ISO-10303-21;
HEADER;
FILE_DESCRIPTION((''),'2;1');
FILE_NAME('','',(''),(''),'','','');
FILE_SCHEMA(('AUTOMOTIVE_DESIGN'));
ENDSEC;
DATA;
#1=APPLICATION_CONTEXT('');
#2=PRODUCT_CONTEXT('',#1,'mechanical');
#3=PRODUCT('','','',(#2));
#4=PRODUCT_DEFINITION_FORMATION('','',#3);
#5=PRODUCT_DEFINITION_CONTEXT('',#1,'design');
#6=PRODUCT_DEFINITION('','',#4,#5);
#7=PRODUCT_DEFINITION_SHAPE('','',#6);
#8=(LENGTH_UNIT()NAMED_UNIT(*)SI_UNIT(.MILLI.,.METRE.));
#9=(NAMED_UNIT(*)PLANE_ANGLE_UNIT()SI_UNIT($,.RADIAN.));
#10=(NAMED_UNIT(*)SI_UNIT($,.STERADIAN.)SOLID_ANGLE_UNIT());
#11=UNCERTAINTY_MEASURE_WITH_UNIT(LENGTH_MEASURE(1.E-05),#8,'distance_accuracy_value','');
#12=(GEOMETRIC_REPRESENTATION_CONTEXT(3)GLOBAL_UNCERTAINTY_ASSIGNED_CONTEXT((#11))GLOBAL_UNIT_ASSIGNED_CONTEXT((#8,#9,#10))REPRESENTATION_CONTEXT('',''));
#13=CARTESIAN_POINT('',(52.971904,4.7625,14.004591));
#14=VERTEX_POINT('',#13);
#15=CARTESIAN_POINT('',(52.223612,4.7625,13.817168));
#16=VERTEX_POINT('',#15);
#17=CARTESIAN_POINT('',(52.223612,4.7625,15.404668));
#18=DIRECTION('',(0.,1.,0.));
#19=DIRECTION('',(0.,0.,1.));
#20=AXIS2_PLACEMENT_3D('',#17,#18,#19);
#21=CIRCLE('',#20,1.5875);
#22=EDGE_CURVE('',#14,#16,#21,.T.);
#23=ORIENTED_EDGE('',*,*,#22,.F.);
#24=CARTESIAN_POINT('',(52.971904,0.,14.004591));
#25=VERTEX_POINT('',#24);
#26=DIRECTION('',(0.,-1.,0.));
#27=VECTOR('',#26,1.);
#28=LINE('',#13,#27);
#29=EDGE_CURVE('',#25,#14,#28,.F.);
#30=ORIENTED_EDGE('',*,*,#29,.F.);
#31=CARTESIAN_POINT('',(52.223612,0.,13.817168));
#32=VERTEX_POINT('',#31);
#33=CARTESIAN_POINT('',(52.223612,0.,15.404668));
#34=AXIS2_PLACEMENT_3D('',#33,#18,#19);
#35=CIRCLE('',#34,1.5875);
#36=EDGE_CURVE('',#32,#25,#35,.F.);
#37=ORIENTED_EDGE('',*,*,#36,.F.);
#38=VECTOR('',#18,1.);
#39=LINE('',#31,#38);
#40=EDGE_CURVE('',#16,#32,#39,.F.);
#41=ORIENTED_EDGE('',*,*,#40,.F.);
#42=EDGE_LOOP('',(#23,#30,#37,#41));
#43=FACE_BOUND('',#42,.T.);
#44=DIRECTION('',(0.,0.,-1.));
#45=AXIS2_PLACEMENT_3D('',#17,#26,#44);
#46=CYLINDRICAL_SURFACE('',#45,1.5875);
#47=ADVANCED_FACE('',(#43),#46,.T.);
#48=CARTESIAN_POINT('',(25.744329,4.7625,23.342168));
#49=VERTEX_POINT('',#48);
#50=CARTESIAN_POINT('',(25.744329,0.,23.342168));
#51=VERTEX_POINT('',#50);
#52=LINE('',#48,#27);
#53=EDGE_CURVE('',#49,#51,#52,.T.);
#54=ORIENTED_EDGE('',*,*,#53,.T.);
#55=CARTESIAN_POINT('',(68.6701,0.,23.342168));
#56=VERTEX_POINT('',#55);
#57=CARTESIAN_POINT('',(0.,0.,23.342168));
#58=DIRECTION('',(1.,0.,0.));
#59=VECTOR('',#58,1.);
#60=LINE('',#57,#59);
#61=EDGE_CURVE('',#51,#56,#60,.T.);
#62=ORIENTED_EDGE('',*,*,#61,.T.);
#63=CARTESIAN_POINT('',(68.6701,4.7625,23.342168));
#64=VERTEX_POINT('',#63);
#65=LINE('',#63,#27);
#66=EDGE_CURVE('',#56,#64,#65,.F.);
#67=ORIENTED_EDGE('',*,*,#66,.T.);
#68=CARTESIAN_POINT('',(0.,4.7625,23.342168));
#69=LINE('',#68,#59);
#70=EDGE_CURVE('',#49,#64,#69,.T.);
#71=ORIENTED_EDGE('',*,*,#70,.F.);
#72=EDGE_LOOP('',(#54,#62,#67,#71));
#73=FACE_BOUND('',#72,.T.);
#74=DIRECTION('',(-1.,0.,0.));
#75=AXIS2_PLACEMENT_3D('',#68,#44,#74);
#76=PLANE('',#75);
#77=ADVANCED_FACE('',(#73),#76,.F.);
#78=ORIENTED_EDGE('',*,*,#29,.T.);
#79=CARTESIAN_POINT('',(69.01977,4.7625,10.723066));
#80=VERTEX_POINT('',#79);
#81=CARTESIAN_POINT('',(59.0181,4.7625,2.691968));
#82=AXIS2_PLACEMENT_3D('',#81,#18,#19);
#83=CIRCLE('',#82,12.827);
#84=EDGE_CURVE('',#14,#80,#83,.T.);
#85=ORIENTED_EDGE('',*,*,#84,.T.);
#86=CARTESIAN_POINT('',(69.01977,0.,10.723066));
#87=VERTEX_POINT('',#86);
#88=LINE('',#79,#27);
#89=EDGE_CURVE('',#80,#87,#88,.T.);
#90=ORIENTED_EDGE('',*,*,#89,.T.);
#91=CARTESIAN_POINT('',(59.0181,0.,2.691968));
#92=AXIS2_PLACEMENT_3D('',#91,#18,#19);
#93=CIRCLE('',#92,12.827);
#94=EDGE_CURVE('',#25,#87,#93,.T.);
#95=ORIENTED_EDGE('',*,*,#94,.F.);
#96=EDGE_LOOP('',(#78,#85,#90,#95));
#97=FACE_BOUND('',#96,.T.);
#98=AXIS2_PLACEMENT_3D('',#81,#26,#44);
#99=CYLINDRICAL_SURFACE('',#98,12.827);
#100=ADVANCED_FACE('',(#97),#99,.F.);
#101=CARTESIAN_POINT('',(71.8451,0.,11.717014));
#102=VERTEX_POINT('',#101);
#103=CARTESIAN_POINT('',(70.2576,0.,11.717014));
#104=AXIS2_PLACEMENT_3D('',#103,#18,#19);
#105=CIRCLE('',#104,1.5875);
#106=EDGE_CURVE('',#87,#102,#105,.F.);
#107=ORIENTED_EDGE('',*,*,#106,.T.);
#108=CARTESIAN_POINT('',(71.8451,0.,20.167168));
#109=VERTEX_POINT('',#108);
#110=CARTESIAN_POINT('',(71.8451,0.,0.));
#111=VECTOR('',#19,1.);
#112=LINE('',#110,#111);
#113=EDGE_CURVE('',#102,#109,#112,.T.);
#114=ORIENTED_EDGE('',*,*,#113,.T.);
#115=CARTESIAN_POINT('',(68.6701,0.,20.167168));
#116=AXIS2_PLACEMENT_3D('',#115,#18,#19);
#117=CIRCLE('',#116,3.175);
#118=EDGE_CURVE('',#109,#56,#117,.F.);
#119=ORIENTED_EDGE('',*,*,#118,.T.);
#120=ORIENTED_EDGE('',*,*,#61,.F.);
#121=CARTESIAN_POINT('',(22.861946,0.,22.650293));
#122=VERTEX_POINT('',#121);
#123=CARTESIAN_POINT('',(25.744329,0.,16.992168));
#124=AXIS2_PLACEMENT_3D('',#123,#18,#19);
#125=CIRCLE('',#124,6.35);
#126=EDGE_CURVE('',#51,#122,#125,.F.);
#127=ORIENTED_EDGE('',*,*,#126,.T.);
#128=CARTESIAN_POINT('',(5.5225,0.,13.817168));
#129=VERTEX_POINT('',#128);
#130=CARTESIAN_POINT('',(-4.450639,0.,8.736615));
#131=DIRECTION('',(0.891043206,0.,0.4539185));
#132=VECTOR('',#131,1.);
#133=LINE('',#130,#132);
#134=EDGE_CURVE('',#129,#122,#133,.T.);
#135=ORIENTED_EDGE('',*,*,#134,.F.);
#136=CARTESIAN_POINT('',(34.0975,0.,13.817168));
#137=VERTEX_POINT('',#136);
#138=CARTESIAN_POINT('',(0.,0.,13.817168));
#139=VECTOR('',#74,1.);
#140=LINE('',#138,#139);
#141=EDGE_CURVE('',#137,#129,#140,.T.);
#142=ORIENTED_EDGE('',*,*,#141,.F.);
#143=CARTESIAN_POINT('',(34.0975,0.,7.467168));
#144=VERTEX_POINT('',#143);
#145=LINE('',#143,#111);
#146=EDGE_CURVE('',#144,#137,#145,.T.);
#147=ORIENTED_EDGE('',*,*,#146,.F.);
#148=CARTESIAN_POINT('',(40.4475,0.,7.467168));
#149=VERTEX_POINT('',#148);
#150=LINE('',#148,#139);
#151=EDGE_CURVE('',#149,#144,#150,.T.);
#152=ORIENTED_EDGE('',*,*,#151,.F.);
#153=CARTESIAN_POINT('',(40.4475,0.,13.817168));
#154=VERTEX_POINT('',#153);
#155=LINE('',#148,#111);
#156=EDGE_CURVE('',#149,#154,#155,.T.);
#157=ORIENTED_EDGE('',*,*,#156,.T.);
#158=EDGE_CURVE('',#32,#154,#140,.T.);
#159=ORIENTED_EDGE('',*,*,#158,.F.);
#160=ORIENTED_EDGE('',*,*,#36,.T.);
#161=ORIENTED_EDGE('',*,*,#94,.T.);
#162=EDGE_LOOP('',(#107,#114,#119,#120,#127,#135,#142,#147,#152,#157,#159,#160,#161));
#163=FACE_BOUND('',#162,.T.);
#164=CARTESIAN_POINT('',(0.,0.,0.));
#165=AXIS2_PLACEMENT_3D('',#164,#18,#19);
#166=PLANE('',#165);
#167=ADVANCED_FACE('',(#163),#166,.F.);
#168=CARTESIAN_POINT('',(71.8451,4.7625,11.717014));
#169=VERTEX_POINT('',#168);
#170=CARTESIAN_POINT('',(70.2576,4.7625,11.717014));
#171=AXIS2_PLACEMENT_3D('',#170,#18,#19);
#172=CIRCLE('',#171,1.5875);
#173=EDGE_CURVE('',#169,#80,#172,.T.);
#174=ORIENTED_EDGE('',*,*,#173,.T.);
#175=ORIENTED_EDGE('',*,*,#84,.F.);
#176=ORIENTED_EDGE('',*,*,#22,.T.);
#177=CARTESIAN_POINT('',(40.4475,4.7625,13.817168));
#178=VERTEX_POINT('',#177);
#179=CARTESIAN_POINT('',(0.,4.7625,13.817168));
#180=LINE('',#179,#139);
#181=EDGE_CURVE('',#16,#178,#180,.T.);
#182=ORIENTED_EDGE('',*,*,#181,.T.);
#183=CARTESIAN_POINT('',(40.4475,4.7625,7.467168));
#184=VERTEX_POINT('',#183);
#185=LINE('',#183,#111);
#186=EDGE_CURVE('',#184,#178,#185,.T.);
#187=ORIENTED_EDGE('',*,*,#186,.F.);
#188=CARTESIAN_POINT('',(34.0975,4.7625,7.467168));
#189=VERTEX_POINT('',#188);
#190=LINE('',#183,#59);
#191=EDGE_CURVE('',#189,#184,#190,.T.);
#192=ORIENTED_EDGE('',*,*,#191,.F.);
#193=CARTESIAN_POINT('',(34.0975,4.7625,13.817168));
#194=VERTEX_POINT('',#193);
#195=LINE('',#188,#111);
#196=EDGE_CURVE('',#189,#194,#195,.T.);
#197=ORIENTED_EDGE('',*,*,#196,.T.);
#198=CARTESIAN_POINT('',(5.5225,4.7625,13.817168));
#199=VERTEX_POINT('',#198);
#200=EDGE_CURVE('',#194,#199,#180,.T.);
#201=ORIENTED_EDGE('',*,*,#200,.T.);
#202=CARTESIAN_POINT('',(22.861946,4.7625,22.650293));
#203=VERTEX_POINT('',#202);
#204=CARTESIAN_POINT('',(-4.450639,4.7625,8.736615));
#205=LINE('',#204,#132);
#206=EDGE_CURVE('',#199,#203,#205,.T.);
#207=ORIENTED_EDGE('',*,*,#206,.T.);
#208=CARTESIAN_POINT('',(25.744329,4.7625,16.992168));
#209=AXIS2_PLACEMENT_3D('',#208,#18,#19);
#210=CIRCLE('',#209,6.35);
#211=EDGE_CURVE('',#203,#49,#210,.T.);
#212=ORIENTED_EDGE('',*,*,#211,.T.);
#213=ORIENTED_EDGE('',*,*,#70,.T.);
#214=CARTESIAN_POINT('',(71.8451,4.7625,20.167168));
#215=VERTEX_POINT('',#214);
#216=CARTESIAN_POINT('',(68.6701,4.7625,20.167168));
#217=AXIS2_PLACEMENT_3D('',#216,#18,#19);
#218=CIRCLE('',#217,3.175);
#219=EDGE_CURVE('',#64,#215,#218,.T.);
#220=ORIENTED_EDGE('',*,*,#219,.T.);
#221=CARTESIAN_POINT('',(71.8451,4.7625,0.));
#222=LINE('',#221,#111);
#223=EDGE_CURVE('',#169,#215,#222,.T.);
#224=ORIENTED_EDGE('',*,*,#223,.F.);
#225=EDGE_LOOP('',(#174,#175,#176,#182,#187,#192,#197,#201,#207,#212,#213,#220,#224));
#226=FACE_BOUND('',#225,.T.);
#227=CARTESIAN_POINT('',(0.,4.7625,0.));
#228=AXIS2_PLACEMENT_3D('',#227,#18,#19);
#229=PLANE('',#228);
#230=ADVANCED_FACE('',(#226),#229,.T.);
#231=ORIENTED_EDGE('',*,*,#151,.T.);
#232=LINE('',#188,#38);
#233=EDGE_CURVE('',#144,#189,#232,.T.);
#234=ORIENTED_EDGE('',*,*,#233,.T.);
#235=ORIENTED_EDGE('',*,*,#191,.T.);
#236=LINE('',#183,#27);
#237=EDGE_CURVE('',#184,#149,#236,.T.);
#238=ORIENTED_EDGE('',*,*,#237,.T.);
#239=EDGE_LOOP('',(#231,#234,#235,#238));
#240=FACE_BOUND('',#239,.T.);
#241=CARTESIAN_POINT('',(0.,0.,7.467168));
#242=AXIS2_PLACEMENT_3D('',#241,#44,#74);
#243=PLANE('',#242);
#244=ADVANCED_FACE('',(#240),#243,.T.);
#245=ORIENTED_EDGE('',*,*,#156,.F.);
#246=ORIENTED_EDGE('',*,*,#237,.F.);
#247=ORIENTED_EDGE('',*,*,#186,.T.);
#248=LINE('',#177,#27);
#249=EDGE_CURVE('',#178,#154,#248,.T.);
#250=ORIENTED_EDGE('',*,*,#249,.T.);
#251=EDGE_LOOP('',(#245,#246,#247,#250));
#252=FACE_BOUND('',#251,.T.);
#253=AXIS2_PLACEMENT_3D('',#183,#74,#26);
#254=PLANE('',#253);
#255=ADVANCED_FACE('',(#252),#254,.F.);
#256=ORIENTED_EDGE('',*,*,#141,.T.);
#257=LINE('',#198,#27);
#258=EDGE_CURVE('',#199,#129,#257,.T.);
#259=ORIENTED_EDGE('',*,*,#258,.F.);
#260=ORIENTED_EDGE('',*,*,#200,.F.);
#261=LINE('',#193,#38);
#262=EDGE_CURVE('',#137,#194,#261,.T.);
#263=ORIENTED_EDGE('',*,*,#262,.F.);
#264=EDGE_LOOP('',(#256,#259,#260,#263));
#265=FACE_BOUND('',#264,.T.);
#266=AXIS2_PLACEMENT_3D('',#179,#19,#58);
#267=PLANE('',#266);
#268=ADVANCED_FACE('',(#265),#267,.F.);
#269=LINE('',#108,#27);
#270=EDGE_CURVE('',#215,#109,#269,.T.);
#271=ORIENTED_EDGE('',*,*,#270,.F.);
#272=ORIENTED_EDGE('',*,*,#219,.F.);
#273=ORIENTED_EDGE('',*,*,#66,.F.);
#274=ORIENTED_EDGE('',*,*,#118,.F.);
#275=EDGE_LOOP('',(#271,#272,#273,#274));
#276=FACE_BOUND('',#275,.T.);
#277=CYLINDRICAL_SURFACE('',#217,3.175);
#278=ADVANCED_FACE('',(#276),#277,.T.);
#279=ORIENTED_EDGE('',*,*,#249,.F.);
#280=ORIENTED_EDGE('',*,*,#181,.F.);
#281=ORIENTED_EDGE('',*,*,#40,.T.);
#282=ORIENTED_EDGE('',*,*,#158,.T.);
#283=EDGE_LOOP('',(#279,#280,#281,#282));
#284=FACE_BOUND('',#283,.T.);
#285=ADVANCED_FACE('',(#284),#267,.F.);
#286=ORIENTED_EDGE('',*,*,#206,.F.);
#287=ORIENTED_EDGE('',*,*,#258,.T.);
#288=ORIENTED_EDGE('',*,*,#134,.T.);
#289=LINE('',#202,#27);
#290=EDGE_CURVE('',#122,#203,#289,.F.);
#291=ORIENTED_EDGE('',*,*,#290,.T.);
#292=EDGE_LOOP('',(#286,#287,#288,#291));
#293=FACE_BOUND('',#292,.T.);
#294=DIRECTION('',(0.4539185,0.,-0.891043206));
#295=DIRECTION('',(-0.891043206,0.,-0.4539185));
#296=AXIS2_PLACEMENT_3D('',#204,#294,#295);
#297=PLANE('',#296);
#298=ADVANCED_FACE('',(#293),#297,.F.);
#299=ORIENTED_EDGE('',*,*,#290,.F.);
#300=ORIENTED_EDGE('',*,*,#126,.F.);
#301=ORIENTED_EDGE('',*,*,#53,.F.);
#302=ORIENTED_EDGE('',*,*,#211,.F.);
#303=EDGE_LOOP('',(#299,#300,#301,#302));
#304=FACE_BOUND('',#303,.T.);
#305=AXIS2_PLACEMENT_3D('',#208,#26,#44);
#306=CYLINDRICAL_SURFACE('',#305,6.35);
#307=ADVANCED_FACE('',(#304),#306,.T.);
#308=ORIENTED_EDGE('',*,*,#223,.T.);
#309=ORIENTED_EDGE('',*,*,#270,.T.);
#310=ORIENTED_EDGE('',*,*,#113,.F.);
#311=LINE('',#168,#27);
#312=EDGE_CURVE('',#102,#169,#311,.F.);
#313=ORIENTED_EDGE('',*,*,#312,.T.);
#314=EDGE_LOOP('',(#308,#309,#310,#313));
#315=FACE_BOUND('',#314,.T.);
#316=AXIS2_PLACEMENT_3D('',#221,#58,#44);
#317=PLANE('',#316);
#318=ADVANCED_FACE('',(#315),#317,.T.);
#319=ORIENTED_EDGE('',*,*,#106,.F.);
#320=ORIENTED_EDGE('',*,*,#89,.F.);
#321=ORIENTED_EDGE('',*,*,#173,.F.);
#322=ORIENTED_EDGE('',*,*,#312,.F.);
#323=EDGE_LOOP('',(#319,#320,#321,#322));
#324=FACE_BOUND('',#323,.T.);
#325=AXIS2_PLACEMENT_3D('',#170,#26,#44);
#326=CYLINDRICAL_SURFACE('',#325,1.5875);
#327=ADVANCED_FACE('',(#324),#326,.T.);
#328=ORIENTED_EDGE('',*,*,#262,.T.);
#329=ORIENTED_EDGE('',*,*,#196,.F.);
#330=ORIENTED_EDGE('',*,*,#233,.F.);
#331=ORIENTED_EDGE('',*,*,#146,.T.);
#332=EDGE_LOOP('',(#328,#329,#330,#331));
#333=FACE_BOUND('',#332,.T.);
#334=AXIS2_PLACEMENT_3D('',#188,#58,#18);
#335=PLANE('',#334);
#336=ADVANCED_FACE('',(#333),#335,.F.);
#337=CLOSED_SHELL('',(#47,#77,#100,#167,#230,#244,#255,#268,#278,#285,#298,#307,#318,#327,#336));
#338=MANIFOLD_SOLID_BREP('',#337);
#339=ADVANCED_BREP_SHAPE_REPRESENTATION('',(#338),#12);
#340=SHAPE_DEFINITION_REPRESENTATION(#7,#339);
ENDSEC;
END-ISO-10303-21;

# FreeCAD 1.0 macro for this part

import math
import FreeCAD as App
import Part
import Sketcher
from FreeCAD import Vector
Q = App.Units.Quantity


def edges_at(feature, points):
    """Names of the edges that pass closest to the given points."""
    edges = feature.Shape.Edges
    near = lambda p: min(range(len(edges)), key=lambda i: edges[i].distToShape(Part.Vertex(*p))[0])
    return sorted({f"Edge{near(p) + 1}" for p in points})

doc = App.newDocument("Part")
body = doc.addObject("PartDesign::Body", "Body")

# Sketch on XZ plane
sketch1 = body.newObject("Sketcher::SketchObject", "Sketch")
sketch1.AttachmentSupport = (doc.getObject("XZ_Plane"), [""])
sketch1.MapMode = "FlatFace"
sketch1.addGeometry([
    Part.ArcOfCircle(Part.Circle(Vector(59, 3, 0), Vector(0, 0, 1), 13), math.radians(0), math.radians(120)),  # 0
    Part.LineSegment(Vector(53, 14, 0), Vector(6, 14, 0)),  # 1
    Part.LineSegment(Vector(6, 14, 0), Vector(24, 23, 0)),  # 2
    Part.LineSegment(Vector(24, 23, 0), Vector(72, 23, 0)),  # 3
    Part.LineSegment(Vector(72, 23, 0), Vector(72, 3, 0)),  # 4
], False)
sketch1.addConstraint([
    Sketcher.Constraint("Coincident", 0, 2, 1, 1),
    Sketcher.Constraint("Coincident", 1, 2, 2, 1),
    Sketcher.Constraint("Coincident", 2, 2, 3, 1),
    Sketcher.Constraint("Coincident", 3, 2, 4, 1),
    Sketcher.Constraint("Tangent", 4, 2, 0, 1),
    Sketcher.Constraint("Horizontal", 1),
    Sketcher.Constraint("Horizontal", 3),
    Sketcher.Constraint("Vertical", 4),
    Sketcher.Constraint("Radius", 0, Q("0.505 in")),
    Sketcher.Constraint("DistanceX", 3, 1, 3, 2, Q("1.875 in")),
    Sketcher.Constraint("DistanceY", 4, 2, 4, 1, Q("0.813 in")),
    Sketcher.Constraint("DistanceY", 0, 3, 0, 2, Q("0.438 in")),
    Sketcher.Constraint("DistanceX", 1, 2, 1, 1, 47.111099),
    Sketcher.Constraint("DistanceX", -1, 1, 0, 3, 59.0181),
    Sketcher.Constraint("DistanceY", -1, 1, 0, 3, 2.691968),
])
pad1 = body.newObject("PartDesign::Pad", "Pad")
pad1.Profile = sketch1
pad1.Length = Q("0.1875 in")
pad1.Reversed = True
doc.recompute()

fillet = body.newObject("PartDesign::Fillet", "Fillet")
fillet.Base = (pad1, edges_at(pad1, [(71.845, 2.381, 2.692), (52.634, 2.381, 13.817)]))
fillet.Radius = Q("0.0625 in")
doc.recompute()

fillet2 = body.newObject("PartDesign::Fillet", "Fillet001")
fillet2.Base = (fillet, edges_at(fillet, [(24.22, 2.381, 23.342)]))
fillet2.Radius = Q("0.25 in")
doc.recompute()

fillet3 = body.newObject("PartDesign::Fillet", "Fillet002")
fillet3.Base = (fillet2, edges_at(fillet2, [(71.845, 2.381, 23.342)]))
fillet3.Radius = Q("0.125 in")

# Sketch on XY plane
sketch2 = body.newObject("Sketcher::SketchObject", "Sketch001")
sketch2.AttachmentSupport = (doc.getObject("XY_Plane"), [""])
sketch2.MapMode = "FlatFace"
sketch2.AttachmentOffset = App.Placement(Vector(0, 0, 13.817168), App.Rotation())
sketch2.addGeometry([
    Part.LineSegment(Vector(40.4, 4.8, 0), Vector(40.4, 0, 0)),
    Part.LineSegment(Vector(40.4, 0, 0), Vector(34.1, 0, 0)),
    Part.LineSegment(Vector(34.1, 0, 0), Vector(34.1, 4.8, 0)),
    Part.LineSegment(Vector(34.1, 4.8, 0), Vector(40.4, 4.8, 0)),
], False)
sketch2.addConstraint([
    Sketcher.Constraint("Coincident", 0, 2, 1, 1),
    Sketcher.Constraint("Coincident", 1, 2, 2, 1),
    Sketcher.Constraint("Coincident", 2, 2, 3, 1),
    Sketcher.Constraint("Coincident", 3, 2, 0, 1),
    Sketcher.Constraint("Vertical", 0),
    Sketcher.Constraint("Horizontal", 1),
    Sketcher.Constraint("Vertical", 2),
    Sketcher.Constraint("Horizontal", 3),
    Sketcher.Constraint("PointOnObject", 0, 2, -1),
    Sketcher.Constraint("DistanceX", 1, 2, 1, 1, Q("0.25 in")),
    Sketcher.Constraint("DistanceY", 0, 2, 0, 1, Q("0.1875 in")),
    Sketcher.Constraint("DistanceX", -1, 1, 0, 2, 40.4475),
])
pad2 = body.newObject("PartDesign::Pad", "Pad001")
pad2.Profile = sketch2
pad2.Length = Q("0.25 in")
pad2.Reversed = True

doc.recompute()
